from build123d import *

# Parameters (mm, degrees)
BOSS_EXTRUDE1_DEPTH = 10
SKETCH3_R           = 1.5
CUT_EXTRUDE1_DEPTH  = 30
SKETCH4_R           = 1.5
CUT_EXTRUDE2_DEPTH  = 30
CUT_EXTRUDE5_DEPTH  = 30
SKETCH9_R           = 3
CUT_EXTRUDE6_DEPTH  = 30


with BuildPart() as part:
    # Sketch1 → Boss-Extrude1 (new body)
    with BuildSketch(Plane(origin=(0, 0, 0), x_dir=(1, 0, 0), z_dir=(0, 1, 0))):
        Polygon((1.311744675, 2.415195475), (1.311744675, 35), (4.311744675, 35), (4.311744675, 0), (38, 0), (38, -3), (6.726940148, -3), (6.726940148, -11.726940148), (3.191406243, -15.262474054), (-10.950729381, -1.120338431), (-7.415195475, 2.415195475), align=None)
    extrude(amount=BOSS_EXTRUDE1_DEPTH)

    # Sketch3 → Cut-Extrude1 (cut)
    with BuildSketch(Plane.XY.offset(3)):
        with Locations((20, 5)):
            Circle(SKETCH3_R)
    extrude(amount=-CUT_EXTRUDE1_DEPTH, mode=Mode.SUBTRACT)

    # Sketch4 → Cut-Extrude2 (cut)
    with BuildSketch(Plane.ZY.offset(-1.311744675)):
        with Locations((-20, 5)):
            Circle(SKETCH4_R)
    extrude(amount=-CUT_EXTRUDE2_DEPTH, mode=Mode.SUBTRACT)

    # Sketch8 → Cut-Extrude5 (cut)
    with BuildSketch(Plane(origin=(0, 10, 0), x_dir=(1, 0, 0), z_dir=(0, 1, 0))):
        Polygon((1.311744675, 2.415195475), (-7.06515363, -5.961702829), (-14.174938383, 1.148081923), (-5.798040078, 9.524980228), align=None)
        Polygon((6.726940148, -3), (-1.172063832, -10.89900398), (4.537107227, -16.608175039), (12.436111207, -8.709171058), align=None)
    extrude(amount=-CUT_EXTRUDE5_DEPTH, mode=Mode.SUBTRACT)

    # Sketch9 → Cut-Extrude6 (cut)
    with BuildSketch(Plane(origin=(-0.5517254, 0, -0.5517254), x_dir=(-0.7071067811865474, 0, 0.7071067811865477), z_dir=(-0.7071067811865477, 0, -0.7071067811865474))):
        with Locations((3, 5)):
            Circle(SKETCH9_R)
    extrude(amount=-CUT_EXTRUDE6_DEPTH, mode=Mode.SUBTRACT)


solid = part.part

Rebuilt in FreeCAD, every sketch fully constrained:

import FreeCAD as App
import Part
import Sketcher
from FreeCAD import Vector
Q = App.Units.Quantity

doc = App.newDocument("Part")
body = doc.addObject("PartDesign::Body", "Body")

sketch1 = body.newObject("Sketcher::SketchObject", "Sketch")
sketch1.AttachmentSupport = (doc.getObject("XZ_Plane"), [""])
sketch1.MapMode = "FlatFace"
sketch1.addGeometry(Part.LineSegment(Vector(1.311745, -35, 0), Vector(1.311745, -2.415195, 0)), False)
sketch1.addGeometry(Part.LineSegment(Vector(1.311745, -2.415195, 0), Vector(-7.415195, -2.415195, 0)), False)
sketch1.addGeometry(Part.LineSegment(Vector(-7.415195, -2.415195, 0), Vector(-10.950729, 1.120338, 0)), False)
sketch1.addGeometry(Part.LineSegment(Vector(-10.950729, 1.120338, 0), Vector(3.191406, 15.262474, 0)), False)
sketch1.addGeometry(Part.LineSegment(Vector(3.191406, 15.262474, 0), Vector(6.72694, 11.72694, 0)), False)
sketch1.addGeometry(Part.LineSegment(Vector(6.72694, 11.72694, 0), Vector(6.72694, 3, 0)), False)
sketch1.addGeometry(Part.LineSegment(Vector(6.72694, 3, 0), Vector(38, 3, 0)), False)
sketch1.addGeometry(Part.LineSegment(Vector(38, 3, 0), Vector(38, 0, 0)), False)
sketch1.addGeometry(Part.LineSegment(Vector(38, 0, 0), Vector(4.311745, 0, 0)), False)
sketch1.addGeometry(Part.LineSegment(Vector(4.311745, 0, 0), Vector(4.311745, -35, 0)), False)
sketch1.addGeometry(Part.LineSegment(Vector(4.311745, -35, 0), Vector(1.311745, -35, 0)), False)
sketch1.addConstraint(Sketcher.Constraint("Coincident", 0, 2, 1, 1))
sketch1.addConstraint(Sketcher.Constraint("Coincident", 1, 2, 2, 1))
sketch1.addConstraint(Sketcher.Constraint("Coincident", 2, 2, 3, 1))
sketch1.addConstraint(Sketcher.Constraint("Coincident", 3, 2, 4, 1))
sketch1.addConstraint(Sketcher.Constraint("Coincident", 4, 2, 5, 1))
sketch1.addConstraint(Sketcher.Constraint("Coincident", 5, 2, 6, 1))
sketch1.addConstraint(Sketcher.Constraint("Coincident", 6, 2, 7, 1))
sketch1.addConstraint(Sketcher.Constraint("Coincident", 7, 2, 8, 1))
sketch1.addConstraint(Sketcher.Constraint("Coincident", 8, 2, 9, 1))
sketch1.addConstraint(Sketcher.Constraint("Coincident", 9, 2, 10, 1))
sketch1.addConstraint(Sketcher.Constraint("Coincident", 10, 2, 0, 1))
sketch1.addConstraint(Sketcher.Constraint("Vertical", 0))
sketch1.addConstraint(Sketcher.Constraint("Horizontal", 1))
sketch1.addConstraint(Sketcher.Constraint("Vertical", 5))
sketch1.addConstraint(Sketcher.Constraint("Horizontal", 6))
sketch1.addConstraint(Sketcher.Constraint("Vertical", 7))
sketch1.addConstraint(Sketcher.Constraint("Horizontal", 8))
sketch1.addConstraint(Sketcher.Constraint("Vertical", 9))
sketch1.addConstraint(Sketcher.Constraint("Horizontal", 10))
sketch1.addConstraint(Sketcher.Constraint("PointOnObject", 7, 2, -1))
sketch1.addConstraint(Sketcher.Constraint("Perpendicular", 2, 3))
sketch1.addConstraint(Sketcher.Constraint("Perpendicular", 3, 4))
sketch1.addConstraint(Sketcher.Constraint("Equal", 1, 5))
sketch1.addConstraint(Sketcher.Constraint("Equal", 10, 7))
sketch1.addConstraint(Sketcher.Constraint("Equal", 2, 4))
sketch1.addConstraint(Sketcher.Constraint("DistanceX", 10, 2, 10, 1, Q("3 mm")))
sketch1.addConstraint(Sketcher.Constraint("DistanceY", 9, 2, 9, 1, Q("35 mm")))
sketch1.addConstraint(Sketcher.Constraint("Angle", 2, Q("135 deg")))
sketch1.addConstraint(Sketcher.Constraint("Distance", 2, Q("5 mm")))
sketch1.addConstraint(Sketcher.Constraint("Distance", 3, Q("20 mm")))
sketch1.addConstraint(Sketcher.Constraint("DistanceX", -1, 1, 6, 2, Q("38 mm")))
sketch1.addConstraint(Sketcher.Constraint("DistanceX", 1, 2, 1, 1, Q("8.72694 mm")))
sketch1.addConstraint(Sketcher.Constraint("DistanceX", 6, 1, 6, 2, Q("31.27306 mm")))
pad1 = body.newObject("PartDesign::Pad", "Pad")
pad1.Profile = sketch1
pad1.Length = 10
pad1.Reversed = True

sketch2 = body.newObject("Sketcher::SketchObject", "Sketch001")
sketch2.AttachmentSupport = (doc.getObject("XY_Plane"), [""])
sketch2.MapMode = "FlatFace"
sketch2.AttachmentOffset = App.Placement(Vector(0, 0, 3), App.Rotation())
sketch2.addGeometry(Part.Circle(Vector(20, 5, 0), Vector(0, 0, 1), 1.5), False)
sketch2.addConstraint(Sketcher.Constraint("Diameter", 0, Q("3 mm")))
sketch2.addConstraint(Sketcher.Constraint("DistanceX", -1, 1, 0, 3, Q("20 mm")))
sketch2.addConstraint(Sketcher.Constraint("DistanceY", -1, 1, 0, 3, Q("5 mm")))
pocket1 = body.newObject("PartDesign::Pocket", "Pocket")
pocket1.Profile = sketch2
pocket1.Length = 30

sketch3 = body.newObject("Sketcher::SketchObject", "Sketch002")
sketch3.AttachmentSupport = (doc.getObject("YZ_Plane"), [""])
sketch3.MapMode = "FlatFace"
sketch3.AttachmentOffset = App.Placement(Vector(0, 0, 1.311745), App.Rotation())
sketch3.addGeometry(Part.Circle(Vector(5, -20, 0), Vector(0, 0, 1), 1.5), False)
sketch3.addConstraint(Sketcher.Constraint("Diameter", 0, Q("3 mm")))
sketch3.addConstraint(Sketcher.Constraint("DistanceX", -1, 1, 0, 3, Q("5 mm")))
sketch3.addConstraint(Sketcher.Constraint("DistanceY", 0, 3, -1, 1, Q("20 mm")))
pocket2 = body.newObject("PartDesign::Pocket", "Pocket001")
pocket2.Profile = sketch3
pocket2.Length = 30
pocket2.Reversed = True

sketch4 = body.newObject("Sketcher::SketchObject", "Sketch003")
sketch4.AttachmentSupport = (doc.getObject("XZ_Plane"), [""])
sketch4.MapMode = "FlatFace"
sketch4.AttachmentOffset = App.Placement(Vector(0, 0, -10), App.Rotation())
sketch4.addGeometry(Part.LineSegment(Vector(-7.065154, 5.961703, 0), Vector(1.311745, -2.415195, 0)), False)
sketch4.addGeometry(Part.LineSegment(Vector(1.311745, -2.415195, 0), Vector(-5.79804, -9.52498, 0)), False)
sketch4.addGeometry(Part.LineSegment(Vector(-5.79804, -9.52498, 0), Vector(-14.174938, -1.148082, 0)), False)
sketch4.addGeometry(Part.LineSegment(Vector(-14.174938, -1.148082, 0), Vector(-7.065154, 5.961703, 0)), False)
sketch4.addGeometry(Part.LineSegment(Vector(6.72694, 3, 0), Vector(-1.172064, 10.899004, 0)), False)
sketch4.addGeometry(Part.LineSegment(Vector(-1.172064, 10.899004, 0), Vector(4.537107, 16.608175, 0)), False)
sketch4.addGeometry(Part.LineSegment(Vector(4.537107, 16.608175, 0), Vector(12.436111, 8.709171, 0)), False)
sketch4.addGeometry(Part.LineSegment(Vector(12.436111, 8.709171, 0), Vector(6.72694, 3, 0)), False)
sketch4.addConstraint(Sketcher.Constraint("Coincident", 0, 2, 1, 1))
sketch4.addConstraint(Sketcher.Constraint("Coincident", 1, 2, 2, 1))
sketch4.addConstraint(Sketcher.Constraint("Coincident", 2, 2, 3, 1))
sketch4.addConstraint(Sketcher.Constraint("Coincident", 3, 2, 0, 1))
sketch4.addConstraint(Sketcher.Constraint("Coincident", 4, 2, 5, 1))
sketch4.addConstraint(Sketcher.Constraint("Coincident", 5, 2, 6, 1))
sketch4.addConstraint(Sketcher.Constraint("Coincident", 6, 2, 7, 1))
sketch4.addConstraint(Sketcher.Constraint("Coincident", 7, 2, 4, 1))
sketch4.addConstraint(Sketcher.Constraint("Perpendicular", 0, 1))
sketch4.addConstraint(Sketcher.Constraint("Perpendicular", 1, 2))
sketch4.addConstraint(Sketcher.Constraint("Perpendicular", 2, 3))
sketch4.addConstraint(Sketcher.Constraint("Perpendicular", 3, 4))
sketch4.addConstraint(Sketcher.Constraint("Perpendicular", 4, 5))
sketch4.addConstraint(Sketcher.Constraint("Perpendicular", 5, 6))
sketch4.addConstraint(Sketcher.Constraint("Perpendicular", 6, 7))
sketch4.addConstraint(Sketcher.Constraint("Angle", 0, Q("-45 deg")))
sketch4.addConstraint(Sketcher.Constraint("DistanceY", -1, 1, 7, 2, Q("3 mm")))
sketch4.addConstraint(Sketcher.Constraint("DistanceX", 2, 2, 1, 2, Q("8.376898 mm")))
sketch4.addConstraint(Sketcher.Constraint("DistanceY", 3, 2, 4, 2, Q("4.937301 mm")))
sketch4.addConstraint(Sketcher.Constraint("Distance", 4, Q("11.170879 mm")))
sketch4.addConstraint(Sketcher.Constraint("DistanceX", 1, 2, -1, 1, Q("5.79804 mm")))
sketch4.addConstraint(Sketcher.Constraint("DistanceY", 1, 2, -1, 1, Q("9.52498 mm")))
sketch4.addConstraint(Sketcher.Constraint("DistanceX", -1, 1, 6, 2, Q("12.436111 mm")))
sketch4.addConstraint(Sketcher.Constraint("DistanceY", -1, 1, 6, 2, Q("8.709171 mm")))
pocket3 = body.newObject("PartDesign::Pocket", "Pocket002")
pocket3.Profile = sketch4
pocket3.Length = 30
pocket3.Reversed = True

sketch5 = body.newObject("Sketcher::SketchObject", "Sketch004")
sketch5.Placement = App.Placement(Vector(-0.551725, 0, -0.551725), App.Rotation(Vector(-0.707106781, 0, 0.707106781), Vector(0, 0.999999999, 0), Vector(-0.707106781, 0, -0.707106781), "ZXY"))
sketch5.addGeometry(Part.Circle(Vector(3, 5, 0), Vector(0, 0, 1), 3), False)
sketch5.addConstraint(Sketcher.Constraint("Diameter", 0, Q("6 mm")))
sketch5.addConstraint(Sketcher.Constraint("DistanceX", -1, 1, 0, 3, Q("3 mm")))
sketch5.addConstraint(Sketcher.Constraint("DistanceY", -1, 1, 0, 3, Q("5 mm")))
pocket4 = body.newObject("PartDesign::Pocket", "Pocket003")
pocket4.Profile = sketch5
pocket4.Length = 30

doc.recompute()
